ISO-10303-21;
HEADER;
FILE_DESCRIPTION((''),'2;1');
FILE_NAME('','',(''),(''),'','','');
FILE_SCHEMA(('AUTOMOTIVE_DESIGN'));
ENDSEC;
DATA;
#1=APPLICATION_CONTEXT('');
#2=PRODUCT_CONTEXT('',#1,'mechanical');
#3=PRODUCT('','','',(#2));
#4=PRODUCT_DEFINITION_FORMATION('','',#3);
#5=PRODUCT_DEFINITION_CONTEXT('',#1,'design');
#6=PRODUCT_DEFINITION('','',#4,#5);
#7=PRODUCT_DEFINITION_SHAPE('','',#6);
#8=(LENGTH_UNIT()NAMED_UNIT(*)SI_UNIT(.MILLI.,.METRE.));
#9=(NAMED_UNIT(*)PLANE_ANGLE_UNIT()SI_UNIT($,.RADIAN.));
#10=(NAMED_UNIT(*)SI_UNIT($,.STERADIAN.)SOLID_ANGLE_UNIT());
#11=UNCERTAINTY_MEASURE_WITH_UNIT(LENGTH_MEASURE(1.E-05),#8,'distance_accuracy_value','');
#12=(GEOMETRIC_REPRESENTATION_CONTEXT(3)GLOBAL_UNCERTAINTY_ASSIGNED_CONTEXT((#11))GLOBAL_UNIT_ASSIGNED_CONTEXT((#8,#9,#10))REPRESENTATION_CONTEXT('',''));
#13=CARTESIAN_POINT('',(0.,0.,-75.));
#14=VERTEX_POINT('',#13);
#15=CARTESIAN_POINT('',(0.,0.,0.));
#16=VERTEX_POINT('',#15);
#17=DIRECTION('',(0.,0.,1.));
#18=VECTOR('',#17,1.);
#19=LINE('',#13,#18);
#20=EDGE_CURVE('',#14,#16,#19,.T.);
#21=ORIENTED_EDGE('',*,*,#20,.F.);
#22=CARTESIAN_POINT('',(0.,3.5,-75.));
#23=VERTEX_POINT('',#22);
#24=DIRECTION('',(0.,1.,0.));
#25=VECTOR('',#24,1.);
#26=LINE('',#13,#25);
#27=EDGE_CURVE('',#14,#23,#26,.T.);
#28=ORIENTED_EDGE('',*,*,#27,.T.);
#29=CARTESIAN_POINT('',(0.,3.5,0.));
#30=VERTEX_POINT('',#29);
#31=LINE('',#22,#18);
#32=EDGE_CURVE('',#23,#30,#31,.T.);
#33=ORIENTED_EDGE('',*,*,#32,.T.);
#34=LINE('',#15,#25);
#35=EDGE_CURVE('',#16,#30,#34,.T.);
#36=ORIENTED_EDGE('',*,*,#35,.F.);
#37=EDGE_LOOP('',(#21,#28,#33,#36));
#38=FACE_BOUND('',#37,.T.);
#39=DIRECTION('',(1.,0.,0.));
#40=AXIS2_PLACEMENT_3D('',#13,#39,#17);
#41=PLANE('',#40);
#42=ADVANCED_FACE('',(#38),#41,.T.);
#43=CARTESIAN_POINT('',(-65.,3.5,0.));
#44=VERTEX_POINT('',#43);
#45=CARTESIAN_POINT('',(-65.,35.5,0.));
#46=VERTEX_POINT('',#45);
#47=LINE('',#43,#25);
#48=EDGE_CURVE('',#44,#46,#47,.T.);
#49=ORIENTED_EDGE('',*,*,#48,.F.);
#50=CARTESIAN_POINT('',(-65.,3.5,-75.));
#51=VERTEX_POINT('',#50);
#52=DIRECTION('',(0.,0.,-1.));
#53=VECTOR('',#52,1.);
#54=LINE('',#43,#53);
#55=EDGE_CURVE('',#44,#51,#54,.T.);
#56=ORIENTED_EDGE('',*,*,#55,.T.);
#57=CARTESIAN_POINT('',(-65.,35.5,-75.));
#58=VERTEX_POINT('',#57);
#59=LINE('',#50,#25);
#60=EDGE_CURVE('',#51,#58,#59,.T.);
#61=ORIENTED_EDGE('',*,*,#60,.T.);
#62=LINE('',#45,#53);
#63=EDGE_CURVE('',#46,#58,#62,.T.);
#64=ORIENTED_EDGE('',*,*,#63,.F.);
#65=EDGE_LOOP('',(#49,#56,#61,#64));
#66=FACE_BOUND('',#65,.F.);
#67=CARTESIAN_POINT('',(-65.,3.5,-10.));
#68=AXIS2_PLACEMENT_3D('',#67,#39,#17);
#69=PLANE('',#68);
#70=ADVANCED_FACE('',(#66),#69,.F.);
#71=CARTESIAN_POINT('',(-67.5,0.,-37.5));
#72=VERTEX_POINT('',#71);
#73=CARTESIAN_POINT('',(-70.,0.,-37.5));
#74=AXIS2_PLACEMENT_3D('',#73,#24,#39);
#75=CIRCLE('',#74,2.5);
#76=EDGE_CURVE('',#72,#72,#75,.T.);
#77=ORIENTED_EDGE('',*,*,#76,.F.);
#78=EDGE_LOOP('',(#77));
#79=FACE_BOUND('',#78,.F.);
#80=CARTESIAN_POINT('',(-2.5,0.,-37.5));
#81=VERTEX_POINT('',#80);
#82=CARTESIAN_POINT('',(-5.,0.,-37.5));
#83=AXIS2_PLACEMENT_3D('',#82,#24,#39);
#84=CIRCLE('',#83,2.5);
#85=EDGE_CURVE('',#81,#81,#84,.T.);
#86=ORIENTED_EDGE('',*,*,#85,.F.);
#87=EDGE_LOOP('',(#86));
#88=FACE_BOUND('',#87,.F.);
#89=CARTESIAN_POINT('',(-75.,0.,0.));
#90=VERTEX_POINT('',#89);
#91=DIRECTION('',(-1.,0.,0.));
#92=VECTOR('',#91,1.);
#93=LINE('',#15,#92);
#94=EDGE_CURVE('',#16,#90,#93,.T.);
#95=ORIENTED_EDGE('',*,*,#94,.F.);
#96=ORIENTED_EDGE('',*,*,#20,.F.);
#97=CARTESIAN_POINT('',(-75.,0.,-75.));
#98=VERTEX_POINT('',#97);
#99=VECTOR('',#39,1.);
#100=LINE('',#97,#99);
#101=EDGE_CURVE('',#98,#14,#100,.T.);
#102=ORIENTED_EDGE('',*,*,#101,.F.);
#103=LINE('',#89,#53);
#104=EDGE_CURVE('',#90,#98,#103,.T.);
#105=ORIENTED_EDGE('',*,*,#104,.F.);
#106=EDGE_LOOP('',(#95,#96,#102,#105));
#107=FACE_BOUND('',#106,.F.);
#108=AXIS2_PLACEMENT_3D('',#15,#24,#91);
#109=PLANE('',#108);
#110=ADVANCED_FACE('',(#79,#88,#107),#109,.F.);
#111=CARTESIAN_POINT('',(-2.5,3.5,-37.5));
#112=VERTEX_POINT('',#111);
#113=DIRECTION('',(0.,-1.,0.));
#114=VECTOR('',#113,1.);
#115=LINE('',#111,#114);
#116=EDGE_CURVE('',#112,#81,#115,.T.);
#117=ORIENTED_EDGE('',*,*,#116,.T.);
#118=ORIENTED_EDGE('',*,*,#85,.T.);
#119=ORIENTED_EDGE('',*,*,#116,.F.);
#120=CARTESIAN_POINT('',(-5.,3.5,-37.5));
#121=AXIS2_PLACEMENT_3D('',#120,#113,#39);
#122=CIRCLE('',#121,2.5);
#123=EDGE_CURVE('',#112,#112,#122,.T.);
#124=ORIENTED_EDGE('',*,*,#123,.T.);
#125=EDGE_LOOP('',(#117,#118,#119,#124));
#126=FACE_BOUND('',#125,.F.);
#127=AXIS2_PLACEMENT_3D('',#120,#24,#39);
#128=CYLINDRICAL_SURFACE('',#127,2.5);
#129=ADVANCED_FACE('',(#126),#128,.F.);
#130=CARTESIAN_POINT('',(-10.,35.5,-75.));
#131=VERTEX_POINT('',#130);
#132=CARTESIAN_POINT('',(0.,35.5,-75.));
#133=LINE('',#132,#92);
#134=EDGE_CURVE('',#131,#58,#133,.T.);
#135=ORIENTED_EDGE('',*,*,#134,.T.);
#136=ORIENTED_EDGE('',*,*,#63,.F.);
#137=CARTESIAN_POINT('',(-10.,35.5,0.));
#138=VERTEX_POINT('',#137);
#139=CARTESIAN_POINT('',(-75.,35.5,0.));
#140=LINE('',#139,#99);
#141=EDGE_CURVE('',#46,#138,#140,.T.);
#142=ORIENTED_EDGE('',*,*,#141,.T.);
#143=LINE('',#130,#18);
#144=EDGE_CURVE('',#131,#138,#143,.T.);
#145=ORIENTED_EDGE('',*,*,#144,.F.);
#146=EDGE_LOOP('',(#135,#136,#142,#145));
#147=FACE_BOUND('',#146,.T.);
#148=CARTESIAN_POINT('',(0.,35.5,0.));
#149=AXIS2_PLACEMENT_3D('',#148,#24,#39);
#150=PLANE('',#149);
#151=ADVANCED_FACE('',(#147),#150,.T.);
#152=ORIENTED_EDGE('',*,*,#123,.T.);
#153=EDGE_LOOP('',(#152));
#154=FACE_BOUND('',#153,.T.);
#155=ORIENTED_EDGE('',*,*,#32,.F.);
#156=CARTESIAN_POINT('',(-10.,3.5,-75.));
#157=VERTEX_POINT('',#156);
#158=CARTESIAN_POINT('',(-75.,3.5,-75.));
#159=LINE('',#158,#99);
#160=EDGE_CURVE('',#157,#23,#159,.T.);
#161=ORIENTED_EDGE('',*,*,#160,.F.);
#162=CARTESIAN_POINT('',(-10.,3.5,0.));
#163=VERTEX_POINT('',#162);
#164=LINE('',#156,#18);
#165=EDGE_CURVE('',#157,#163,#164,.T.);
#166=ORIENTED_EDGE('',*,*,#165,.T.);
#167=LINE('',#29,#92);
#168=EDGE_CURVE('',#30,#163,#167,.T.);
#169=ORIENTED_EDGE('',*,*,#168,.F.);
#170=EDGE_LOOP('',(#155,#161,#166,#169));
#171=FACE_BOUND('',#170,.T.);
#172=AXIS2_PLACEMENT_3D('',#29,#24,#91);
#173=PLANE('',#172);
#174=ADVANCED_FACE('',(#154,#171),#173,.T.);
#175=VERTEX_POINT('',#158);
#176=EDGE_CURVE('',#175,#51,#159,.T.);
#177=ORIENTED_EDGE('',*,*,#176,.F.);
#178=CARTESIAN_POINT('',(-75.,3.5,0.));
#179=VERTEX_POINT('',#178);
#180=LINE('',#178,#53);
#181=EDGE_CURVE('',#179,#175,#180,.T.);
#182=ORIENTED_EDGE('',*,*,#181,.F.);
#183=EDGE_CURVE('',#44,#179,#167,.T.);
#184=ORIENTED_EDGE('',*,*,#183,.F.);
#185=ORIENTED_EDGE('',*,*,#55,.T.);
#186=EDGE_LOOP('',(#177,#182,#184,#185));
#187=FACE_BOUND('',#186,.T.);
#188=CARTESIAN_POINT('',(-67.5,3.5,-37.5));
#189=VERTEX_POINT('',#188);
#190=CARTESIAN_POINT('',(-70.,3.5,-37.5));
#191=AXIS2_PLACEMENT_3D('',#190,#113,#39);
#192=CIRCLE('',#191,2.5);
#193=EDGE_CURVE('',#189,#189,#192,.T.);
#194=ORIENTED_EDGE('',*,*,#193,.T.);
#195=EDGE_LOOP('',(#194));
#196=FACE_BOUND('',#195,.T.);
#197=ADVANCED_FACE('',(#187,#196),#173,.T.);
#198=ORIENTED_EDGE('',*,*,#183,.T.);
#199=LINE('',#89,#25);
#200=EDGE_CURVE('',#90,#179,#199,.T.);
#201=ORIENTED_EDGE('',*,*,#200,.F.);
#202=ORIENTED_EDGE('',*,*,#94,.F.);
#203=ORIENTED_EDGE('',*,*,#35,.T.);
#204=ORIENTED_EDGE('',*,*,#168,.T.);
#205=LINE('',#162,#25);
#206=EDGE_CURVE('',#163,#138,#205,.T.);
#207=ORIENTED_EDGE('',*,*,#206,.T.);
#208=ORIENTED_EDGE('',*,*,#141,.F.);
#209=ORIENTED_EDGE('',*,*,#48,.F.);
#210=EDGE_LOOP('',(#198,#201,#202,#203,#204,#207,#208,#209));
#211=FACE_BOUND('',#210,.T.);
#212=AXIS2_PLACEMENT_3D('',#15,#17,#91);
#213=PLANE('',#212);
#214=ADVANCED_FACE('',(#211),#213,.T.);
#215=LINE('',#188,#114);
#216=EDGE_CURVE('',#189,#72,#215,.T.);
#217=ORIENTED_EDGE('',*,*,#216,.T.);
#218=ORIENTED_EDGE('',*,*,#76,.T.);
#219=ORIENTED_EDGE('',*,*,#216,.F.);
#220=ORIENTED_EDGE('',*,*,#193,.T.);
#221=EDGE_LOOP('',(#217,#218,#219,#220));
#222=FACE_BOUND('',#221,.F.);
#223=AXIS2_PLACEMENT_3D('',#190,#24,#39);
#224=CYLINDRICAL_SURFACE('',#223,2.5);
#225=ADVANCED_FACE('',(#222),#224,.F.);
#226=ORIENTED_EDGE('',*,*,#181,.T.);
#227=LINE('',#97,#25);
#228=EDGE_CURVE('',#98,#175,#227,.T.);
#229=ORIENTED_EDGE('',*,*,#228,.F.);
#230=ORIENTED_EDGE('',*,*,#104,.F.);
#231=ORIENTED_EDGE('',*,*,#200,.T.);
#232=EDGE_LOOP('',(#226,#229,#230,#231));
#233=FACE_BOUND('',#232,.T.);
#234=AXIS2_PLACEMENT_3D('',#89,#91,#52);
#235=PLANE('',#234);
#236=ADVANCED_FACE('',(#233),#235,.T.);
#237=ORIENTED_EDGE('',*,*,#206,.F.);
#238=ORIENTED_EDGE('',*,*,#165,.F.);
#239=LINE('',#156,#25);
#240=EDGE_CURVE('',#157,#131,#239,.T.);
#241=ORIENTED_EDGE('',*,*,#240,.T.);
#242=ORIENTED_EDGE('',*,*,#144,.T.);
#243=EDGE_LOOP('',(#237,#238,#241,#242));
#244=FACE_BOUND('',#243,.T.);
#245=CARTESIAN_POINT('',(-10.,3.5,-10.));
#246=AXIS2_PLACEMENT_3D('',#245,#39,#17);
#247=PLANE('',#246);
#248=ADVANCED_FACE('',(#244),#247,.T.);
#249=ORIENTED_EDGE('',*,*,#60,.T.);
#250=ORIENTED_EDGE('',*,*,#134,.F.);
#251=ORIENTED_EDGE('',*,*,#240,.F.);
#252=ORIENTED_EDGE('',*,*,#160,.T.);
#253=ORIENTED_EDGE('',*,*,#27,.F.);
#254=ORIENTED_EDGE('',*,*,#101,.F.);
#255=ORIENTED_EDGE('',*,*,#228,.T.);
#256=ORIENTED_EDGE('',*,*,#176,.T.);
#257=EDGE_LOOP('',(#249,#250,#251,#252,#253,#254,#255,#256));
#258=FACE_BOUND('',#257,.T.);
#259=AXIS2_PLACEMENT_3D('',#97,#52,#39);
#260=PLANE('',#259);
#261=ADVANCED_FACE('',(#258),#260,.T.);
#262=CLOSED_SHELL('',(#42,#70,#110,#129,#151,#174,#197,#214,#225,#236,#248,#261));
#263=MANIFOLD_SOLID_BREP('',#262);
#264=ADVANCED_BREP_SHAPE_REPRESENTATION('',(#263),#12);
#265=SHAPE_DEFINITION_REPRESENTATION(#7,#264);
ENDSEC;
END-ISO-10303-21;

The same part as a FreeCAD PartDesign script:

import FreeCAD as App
import Part
import Sketcher
Q = App.Units.Quantity

doc = App.newDocument("Part")
params = doc.addObject("Spreadsheet::Sheet", "Params")
for row, (alias, value) in enumerate([
    ("sketch1_width", "75 mm"),
    ("pad1_length", "3.5 mm"),
    ("sketch2_diameter", "5 mm"),
    ("pocket1_length", "3.5 mm"),
    ("sketch3_width", "55 mm"),
    ("sketch3_height", "75 mm"),
    ("pad2_length", "32 mm"),
], start=1):
    params.set(f"A{row}", alias)
    params.set(f"B{row}", "=" + value)
    params.setAlias(f"B{row}", alias)

body = doc.addObject("PartDesign::Body", "Body")

# Sketch on XZ plane
sketch1 = body.newObject("Sketcher::SketchObject", "Sketch")
sketch1.AttachmentSupport = (doc.getObject("XZ_Plane"), [""])
sketch1.MapMode = "FlatFace"
sketch1.addGeometry([
    Part.LineSegment(App.Vector(-75, 0, 0), App.Vector(0, 0, 0)),
    Part.LineSegment(App.Vector(0, 0, 0), App.Vector(0, -75, 0)),
    Part.LineSegment(App.Vector(0, -75, 0), App.Vector(-75, -75, 0)),
    Part.LineSegment(App.Vector(-75, -75, 0), App.Vector(-75, 0, 0)),
], False)
sketch1.addConstraint([
    Sketcher.Constraint("Coincident", 0, 2, 1, 1),
    Sketcher.Constraint("Coincident", 1, 2, 2, 1),
    Sketcher.Constraint("Coincident", 2, 2, 3, 1),
    Sketcher.Constraint("Coincident", 3, 2, 0, 1),
    Sketcher.Constraint("Horizontal", 0),
    Sketcher.Constraint("Vertical", 1),
    Sketcher.Constraint("Horizontal", 2),
    Sketcher.Constraint("Vertical", 3),
    Sketcher.Constraint("Coincident", 0, 2, -1, 1),
    Sketcher.Constraint("Equal", 2, 1),
    Sketcher.Constraint("DistanceX", 0, 1, 0, 2, Q("75 mm")),
])
sketch1.setExpression("Constraints[10]", "Params.sketch1_width")
pad1 = body.newObject("PartDesign::Pad", "Pad")
pad1.Profile = sketch1
pad1.setExpression("Length", "Params.pad1_length")
pad1.Reversed = True

# Sketch on XZ plane
sketch2 = body.newObject("Sketcher::SketchObject", "Sketch001")
sketch2.AttachmentSupport = (doc.getObject("XZ_Plane"), [""])
sketch2.MapMode = "FlatFace"
sketch2.AttachmentOffset = App.Placement(App.Vector(0, 0, -3.5), App.Rotation())
sketch2.addGeometry([
    Part.Circle(App.Vector(-70, -37.5, 0), App.Vector(0, 0, 1), 2.5),
    Part.Circle(App.Vector(-5, -37.5, 0), App.Vector(0, 0, 1), 2.5),
], False)
sketch2.addConstraint([
    Sketcher.Constraint("Equal", 0, 1),
    Sketcher.Constraint("Horizontal", 0, 3, 1, 3),
    Sketcher.Constraint("Diameter", 0, Q("5 mm")),
    Sketcher.Constraint("DistanceX", 1, 3, -1, 1, Q("5 mm")),
    Sketcher.Constraint("DistanceX", 0, 3, -1, 1, Q("70 mm")),
    Sketcher.Constraint("DistanceY", 0, 3, -1, 1, Q("37.5 mm")),
])
sketch2.setExpression("Constraints[2]", "Params.sketch2_diameter")
pocket1 = body.newObject("PartDesign::Pocket", "Pocket")
pocket1.Profile = sketch2
pocket1.setExpression("Length", "Params.pocket1_length")
pocket1.Reversed = True

# Sketch on XZ plane
sketch3 = body.newObject("Sketcher::SketchObject", "Sketch002")
sketch3.AttachmentSupport = (doc.getObject("XZ_Plane"), [""])
sketch3.MapMode = "FlatFace"
sketch3.AttachmentOffset = App.Placement(App.Vector(0, 0, -3.5), App.Rotation())
sketch3.addGeometry([
    Part.LineSegment(App.Vector(-65, -75, 0), App.Vector(-65, 0, 0)),
    Part.LineSegment(App.Vector(-65, 0, 0), App.Vector(-10, 0, 0)),
    Part.LineSegment(App.Vector(-10, 0, 0), App.Vector(-10, -75, 0)),
    Part.LineSegment(App.Vector(-10, -75, 0), App.Vector(-65, -75, 0)),
], False)
sketch3.addConstraint([
    Sketcher.Constraint("Coincident", 0, 2, 1, 1),
    Sketcher.Constraint("Coincident", 1, 2, 2, 1),
    Sketcher.Constraint("Coincident", 2, 2, 3, 1),
    Sketcher.Constraint("Coincident", 3, 2, 0, 1),
    Sketcher.Constraint("Vertical", 0),
    Sketcher.Constraint("Horizontal", 1),
    Sketcher.Constraint("Vertical", 2),
    Sketcher.Constraint("Horizontal", 3),
    Sketcher.Constraint("PointOnObject", 0, 2, -1),
    Sketcher.Constraint("DistanceX", 1, 2, -1, 1, Q("10 mm")),
    Sketcher.Constraint("DistanceX", 1, 1, 1, 2, Q("55 mm")),
    Sketcher.Constraint("DistanceY", 0, 1, 0, 2, Q("75 mm")),
])
sketch3.setExpression("Constraints[10]", "Params.sketch3_width")
sketch3.setExpression("Constraints[11]", "Params.sketch3_height")
pad2 = body.newObject("PartDesign::Pad", "Pad001")
pad2.Profile = sketch3
pad2.setExpression("Length", "Params.pad2_length")
pad2.Reversed = True

doc.recompute()
